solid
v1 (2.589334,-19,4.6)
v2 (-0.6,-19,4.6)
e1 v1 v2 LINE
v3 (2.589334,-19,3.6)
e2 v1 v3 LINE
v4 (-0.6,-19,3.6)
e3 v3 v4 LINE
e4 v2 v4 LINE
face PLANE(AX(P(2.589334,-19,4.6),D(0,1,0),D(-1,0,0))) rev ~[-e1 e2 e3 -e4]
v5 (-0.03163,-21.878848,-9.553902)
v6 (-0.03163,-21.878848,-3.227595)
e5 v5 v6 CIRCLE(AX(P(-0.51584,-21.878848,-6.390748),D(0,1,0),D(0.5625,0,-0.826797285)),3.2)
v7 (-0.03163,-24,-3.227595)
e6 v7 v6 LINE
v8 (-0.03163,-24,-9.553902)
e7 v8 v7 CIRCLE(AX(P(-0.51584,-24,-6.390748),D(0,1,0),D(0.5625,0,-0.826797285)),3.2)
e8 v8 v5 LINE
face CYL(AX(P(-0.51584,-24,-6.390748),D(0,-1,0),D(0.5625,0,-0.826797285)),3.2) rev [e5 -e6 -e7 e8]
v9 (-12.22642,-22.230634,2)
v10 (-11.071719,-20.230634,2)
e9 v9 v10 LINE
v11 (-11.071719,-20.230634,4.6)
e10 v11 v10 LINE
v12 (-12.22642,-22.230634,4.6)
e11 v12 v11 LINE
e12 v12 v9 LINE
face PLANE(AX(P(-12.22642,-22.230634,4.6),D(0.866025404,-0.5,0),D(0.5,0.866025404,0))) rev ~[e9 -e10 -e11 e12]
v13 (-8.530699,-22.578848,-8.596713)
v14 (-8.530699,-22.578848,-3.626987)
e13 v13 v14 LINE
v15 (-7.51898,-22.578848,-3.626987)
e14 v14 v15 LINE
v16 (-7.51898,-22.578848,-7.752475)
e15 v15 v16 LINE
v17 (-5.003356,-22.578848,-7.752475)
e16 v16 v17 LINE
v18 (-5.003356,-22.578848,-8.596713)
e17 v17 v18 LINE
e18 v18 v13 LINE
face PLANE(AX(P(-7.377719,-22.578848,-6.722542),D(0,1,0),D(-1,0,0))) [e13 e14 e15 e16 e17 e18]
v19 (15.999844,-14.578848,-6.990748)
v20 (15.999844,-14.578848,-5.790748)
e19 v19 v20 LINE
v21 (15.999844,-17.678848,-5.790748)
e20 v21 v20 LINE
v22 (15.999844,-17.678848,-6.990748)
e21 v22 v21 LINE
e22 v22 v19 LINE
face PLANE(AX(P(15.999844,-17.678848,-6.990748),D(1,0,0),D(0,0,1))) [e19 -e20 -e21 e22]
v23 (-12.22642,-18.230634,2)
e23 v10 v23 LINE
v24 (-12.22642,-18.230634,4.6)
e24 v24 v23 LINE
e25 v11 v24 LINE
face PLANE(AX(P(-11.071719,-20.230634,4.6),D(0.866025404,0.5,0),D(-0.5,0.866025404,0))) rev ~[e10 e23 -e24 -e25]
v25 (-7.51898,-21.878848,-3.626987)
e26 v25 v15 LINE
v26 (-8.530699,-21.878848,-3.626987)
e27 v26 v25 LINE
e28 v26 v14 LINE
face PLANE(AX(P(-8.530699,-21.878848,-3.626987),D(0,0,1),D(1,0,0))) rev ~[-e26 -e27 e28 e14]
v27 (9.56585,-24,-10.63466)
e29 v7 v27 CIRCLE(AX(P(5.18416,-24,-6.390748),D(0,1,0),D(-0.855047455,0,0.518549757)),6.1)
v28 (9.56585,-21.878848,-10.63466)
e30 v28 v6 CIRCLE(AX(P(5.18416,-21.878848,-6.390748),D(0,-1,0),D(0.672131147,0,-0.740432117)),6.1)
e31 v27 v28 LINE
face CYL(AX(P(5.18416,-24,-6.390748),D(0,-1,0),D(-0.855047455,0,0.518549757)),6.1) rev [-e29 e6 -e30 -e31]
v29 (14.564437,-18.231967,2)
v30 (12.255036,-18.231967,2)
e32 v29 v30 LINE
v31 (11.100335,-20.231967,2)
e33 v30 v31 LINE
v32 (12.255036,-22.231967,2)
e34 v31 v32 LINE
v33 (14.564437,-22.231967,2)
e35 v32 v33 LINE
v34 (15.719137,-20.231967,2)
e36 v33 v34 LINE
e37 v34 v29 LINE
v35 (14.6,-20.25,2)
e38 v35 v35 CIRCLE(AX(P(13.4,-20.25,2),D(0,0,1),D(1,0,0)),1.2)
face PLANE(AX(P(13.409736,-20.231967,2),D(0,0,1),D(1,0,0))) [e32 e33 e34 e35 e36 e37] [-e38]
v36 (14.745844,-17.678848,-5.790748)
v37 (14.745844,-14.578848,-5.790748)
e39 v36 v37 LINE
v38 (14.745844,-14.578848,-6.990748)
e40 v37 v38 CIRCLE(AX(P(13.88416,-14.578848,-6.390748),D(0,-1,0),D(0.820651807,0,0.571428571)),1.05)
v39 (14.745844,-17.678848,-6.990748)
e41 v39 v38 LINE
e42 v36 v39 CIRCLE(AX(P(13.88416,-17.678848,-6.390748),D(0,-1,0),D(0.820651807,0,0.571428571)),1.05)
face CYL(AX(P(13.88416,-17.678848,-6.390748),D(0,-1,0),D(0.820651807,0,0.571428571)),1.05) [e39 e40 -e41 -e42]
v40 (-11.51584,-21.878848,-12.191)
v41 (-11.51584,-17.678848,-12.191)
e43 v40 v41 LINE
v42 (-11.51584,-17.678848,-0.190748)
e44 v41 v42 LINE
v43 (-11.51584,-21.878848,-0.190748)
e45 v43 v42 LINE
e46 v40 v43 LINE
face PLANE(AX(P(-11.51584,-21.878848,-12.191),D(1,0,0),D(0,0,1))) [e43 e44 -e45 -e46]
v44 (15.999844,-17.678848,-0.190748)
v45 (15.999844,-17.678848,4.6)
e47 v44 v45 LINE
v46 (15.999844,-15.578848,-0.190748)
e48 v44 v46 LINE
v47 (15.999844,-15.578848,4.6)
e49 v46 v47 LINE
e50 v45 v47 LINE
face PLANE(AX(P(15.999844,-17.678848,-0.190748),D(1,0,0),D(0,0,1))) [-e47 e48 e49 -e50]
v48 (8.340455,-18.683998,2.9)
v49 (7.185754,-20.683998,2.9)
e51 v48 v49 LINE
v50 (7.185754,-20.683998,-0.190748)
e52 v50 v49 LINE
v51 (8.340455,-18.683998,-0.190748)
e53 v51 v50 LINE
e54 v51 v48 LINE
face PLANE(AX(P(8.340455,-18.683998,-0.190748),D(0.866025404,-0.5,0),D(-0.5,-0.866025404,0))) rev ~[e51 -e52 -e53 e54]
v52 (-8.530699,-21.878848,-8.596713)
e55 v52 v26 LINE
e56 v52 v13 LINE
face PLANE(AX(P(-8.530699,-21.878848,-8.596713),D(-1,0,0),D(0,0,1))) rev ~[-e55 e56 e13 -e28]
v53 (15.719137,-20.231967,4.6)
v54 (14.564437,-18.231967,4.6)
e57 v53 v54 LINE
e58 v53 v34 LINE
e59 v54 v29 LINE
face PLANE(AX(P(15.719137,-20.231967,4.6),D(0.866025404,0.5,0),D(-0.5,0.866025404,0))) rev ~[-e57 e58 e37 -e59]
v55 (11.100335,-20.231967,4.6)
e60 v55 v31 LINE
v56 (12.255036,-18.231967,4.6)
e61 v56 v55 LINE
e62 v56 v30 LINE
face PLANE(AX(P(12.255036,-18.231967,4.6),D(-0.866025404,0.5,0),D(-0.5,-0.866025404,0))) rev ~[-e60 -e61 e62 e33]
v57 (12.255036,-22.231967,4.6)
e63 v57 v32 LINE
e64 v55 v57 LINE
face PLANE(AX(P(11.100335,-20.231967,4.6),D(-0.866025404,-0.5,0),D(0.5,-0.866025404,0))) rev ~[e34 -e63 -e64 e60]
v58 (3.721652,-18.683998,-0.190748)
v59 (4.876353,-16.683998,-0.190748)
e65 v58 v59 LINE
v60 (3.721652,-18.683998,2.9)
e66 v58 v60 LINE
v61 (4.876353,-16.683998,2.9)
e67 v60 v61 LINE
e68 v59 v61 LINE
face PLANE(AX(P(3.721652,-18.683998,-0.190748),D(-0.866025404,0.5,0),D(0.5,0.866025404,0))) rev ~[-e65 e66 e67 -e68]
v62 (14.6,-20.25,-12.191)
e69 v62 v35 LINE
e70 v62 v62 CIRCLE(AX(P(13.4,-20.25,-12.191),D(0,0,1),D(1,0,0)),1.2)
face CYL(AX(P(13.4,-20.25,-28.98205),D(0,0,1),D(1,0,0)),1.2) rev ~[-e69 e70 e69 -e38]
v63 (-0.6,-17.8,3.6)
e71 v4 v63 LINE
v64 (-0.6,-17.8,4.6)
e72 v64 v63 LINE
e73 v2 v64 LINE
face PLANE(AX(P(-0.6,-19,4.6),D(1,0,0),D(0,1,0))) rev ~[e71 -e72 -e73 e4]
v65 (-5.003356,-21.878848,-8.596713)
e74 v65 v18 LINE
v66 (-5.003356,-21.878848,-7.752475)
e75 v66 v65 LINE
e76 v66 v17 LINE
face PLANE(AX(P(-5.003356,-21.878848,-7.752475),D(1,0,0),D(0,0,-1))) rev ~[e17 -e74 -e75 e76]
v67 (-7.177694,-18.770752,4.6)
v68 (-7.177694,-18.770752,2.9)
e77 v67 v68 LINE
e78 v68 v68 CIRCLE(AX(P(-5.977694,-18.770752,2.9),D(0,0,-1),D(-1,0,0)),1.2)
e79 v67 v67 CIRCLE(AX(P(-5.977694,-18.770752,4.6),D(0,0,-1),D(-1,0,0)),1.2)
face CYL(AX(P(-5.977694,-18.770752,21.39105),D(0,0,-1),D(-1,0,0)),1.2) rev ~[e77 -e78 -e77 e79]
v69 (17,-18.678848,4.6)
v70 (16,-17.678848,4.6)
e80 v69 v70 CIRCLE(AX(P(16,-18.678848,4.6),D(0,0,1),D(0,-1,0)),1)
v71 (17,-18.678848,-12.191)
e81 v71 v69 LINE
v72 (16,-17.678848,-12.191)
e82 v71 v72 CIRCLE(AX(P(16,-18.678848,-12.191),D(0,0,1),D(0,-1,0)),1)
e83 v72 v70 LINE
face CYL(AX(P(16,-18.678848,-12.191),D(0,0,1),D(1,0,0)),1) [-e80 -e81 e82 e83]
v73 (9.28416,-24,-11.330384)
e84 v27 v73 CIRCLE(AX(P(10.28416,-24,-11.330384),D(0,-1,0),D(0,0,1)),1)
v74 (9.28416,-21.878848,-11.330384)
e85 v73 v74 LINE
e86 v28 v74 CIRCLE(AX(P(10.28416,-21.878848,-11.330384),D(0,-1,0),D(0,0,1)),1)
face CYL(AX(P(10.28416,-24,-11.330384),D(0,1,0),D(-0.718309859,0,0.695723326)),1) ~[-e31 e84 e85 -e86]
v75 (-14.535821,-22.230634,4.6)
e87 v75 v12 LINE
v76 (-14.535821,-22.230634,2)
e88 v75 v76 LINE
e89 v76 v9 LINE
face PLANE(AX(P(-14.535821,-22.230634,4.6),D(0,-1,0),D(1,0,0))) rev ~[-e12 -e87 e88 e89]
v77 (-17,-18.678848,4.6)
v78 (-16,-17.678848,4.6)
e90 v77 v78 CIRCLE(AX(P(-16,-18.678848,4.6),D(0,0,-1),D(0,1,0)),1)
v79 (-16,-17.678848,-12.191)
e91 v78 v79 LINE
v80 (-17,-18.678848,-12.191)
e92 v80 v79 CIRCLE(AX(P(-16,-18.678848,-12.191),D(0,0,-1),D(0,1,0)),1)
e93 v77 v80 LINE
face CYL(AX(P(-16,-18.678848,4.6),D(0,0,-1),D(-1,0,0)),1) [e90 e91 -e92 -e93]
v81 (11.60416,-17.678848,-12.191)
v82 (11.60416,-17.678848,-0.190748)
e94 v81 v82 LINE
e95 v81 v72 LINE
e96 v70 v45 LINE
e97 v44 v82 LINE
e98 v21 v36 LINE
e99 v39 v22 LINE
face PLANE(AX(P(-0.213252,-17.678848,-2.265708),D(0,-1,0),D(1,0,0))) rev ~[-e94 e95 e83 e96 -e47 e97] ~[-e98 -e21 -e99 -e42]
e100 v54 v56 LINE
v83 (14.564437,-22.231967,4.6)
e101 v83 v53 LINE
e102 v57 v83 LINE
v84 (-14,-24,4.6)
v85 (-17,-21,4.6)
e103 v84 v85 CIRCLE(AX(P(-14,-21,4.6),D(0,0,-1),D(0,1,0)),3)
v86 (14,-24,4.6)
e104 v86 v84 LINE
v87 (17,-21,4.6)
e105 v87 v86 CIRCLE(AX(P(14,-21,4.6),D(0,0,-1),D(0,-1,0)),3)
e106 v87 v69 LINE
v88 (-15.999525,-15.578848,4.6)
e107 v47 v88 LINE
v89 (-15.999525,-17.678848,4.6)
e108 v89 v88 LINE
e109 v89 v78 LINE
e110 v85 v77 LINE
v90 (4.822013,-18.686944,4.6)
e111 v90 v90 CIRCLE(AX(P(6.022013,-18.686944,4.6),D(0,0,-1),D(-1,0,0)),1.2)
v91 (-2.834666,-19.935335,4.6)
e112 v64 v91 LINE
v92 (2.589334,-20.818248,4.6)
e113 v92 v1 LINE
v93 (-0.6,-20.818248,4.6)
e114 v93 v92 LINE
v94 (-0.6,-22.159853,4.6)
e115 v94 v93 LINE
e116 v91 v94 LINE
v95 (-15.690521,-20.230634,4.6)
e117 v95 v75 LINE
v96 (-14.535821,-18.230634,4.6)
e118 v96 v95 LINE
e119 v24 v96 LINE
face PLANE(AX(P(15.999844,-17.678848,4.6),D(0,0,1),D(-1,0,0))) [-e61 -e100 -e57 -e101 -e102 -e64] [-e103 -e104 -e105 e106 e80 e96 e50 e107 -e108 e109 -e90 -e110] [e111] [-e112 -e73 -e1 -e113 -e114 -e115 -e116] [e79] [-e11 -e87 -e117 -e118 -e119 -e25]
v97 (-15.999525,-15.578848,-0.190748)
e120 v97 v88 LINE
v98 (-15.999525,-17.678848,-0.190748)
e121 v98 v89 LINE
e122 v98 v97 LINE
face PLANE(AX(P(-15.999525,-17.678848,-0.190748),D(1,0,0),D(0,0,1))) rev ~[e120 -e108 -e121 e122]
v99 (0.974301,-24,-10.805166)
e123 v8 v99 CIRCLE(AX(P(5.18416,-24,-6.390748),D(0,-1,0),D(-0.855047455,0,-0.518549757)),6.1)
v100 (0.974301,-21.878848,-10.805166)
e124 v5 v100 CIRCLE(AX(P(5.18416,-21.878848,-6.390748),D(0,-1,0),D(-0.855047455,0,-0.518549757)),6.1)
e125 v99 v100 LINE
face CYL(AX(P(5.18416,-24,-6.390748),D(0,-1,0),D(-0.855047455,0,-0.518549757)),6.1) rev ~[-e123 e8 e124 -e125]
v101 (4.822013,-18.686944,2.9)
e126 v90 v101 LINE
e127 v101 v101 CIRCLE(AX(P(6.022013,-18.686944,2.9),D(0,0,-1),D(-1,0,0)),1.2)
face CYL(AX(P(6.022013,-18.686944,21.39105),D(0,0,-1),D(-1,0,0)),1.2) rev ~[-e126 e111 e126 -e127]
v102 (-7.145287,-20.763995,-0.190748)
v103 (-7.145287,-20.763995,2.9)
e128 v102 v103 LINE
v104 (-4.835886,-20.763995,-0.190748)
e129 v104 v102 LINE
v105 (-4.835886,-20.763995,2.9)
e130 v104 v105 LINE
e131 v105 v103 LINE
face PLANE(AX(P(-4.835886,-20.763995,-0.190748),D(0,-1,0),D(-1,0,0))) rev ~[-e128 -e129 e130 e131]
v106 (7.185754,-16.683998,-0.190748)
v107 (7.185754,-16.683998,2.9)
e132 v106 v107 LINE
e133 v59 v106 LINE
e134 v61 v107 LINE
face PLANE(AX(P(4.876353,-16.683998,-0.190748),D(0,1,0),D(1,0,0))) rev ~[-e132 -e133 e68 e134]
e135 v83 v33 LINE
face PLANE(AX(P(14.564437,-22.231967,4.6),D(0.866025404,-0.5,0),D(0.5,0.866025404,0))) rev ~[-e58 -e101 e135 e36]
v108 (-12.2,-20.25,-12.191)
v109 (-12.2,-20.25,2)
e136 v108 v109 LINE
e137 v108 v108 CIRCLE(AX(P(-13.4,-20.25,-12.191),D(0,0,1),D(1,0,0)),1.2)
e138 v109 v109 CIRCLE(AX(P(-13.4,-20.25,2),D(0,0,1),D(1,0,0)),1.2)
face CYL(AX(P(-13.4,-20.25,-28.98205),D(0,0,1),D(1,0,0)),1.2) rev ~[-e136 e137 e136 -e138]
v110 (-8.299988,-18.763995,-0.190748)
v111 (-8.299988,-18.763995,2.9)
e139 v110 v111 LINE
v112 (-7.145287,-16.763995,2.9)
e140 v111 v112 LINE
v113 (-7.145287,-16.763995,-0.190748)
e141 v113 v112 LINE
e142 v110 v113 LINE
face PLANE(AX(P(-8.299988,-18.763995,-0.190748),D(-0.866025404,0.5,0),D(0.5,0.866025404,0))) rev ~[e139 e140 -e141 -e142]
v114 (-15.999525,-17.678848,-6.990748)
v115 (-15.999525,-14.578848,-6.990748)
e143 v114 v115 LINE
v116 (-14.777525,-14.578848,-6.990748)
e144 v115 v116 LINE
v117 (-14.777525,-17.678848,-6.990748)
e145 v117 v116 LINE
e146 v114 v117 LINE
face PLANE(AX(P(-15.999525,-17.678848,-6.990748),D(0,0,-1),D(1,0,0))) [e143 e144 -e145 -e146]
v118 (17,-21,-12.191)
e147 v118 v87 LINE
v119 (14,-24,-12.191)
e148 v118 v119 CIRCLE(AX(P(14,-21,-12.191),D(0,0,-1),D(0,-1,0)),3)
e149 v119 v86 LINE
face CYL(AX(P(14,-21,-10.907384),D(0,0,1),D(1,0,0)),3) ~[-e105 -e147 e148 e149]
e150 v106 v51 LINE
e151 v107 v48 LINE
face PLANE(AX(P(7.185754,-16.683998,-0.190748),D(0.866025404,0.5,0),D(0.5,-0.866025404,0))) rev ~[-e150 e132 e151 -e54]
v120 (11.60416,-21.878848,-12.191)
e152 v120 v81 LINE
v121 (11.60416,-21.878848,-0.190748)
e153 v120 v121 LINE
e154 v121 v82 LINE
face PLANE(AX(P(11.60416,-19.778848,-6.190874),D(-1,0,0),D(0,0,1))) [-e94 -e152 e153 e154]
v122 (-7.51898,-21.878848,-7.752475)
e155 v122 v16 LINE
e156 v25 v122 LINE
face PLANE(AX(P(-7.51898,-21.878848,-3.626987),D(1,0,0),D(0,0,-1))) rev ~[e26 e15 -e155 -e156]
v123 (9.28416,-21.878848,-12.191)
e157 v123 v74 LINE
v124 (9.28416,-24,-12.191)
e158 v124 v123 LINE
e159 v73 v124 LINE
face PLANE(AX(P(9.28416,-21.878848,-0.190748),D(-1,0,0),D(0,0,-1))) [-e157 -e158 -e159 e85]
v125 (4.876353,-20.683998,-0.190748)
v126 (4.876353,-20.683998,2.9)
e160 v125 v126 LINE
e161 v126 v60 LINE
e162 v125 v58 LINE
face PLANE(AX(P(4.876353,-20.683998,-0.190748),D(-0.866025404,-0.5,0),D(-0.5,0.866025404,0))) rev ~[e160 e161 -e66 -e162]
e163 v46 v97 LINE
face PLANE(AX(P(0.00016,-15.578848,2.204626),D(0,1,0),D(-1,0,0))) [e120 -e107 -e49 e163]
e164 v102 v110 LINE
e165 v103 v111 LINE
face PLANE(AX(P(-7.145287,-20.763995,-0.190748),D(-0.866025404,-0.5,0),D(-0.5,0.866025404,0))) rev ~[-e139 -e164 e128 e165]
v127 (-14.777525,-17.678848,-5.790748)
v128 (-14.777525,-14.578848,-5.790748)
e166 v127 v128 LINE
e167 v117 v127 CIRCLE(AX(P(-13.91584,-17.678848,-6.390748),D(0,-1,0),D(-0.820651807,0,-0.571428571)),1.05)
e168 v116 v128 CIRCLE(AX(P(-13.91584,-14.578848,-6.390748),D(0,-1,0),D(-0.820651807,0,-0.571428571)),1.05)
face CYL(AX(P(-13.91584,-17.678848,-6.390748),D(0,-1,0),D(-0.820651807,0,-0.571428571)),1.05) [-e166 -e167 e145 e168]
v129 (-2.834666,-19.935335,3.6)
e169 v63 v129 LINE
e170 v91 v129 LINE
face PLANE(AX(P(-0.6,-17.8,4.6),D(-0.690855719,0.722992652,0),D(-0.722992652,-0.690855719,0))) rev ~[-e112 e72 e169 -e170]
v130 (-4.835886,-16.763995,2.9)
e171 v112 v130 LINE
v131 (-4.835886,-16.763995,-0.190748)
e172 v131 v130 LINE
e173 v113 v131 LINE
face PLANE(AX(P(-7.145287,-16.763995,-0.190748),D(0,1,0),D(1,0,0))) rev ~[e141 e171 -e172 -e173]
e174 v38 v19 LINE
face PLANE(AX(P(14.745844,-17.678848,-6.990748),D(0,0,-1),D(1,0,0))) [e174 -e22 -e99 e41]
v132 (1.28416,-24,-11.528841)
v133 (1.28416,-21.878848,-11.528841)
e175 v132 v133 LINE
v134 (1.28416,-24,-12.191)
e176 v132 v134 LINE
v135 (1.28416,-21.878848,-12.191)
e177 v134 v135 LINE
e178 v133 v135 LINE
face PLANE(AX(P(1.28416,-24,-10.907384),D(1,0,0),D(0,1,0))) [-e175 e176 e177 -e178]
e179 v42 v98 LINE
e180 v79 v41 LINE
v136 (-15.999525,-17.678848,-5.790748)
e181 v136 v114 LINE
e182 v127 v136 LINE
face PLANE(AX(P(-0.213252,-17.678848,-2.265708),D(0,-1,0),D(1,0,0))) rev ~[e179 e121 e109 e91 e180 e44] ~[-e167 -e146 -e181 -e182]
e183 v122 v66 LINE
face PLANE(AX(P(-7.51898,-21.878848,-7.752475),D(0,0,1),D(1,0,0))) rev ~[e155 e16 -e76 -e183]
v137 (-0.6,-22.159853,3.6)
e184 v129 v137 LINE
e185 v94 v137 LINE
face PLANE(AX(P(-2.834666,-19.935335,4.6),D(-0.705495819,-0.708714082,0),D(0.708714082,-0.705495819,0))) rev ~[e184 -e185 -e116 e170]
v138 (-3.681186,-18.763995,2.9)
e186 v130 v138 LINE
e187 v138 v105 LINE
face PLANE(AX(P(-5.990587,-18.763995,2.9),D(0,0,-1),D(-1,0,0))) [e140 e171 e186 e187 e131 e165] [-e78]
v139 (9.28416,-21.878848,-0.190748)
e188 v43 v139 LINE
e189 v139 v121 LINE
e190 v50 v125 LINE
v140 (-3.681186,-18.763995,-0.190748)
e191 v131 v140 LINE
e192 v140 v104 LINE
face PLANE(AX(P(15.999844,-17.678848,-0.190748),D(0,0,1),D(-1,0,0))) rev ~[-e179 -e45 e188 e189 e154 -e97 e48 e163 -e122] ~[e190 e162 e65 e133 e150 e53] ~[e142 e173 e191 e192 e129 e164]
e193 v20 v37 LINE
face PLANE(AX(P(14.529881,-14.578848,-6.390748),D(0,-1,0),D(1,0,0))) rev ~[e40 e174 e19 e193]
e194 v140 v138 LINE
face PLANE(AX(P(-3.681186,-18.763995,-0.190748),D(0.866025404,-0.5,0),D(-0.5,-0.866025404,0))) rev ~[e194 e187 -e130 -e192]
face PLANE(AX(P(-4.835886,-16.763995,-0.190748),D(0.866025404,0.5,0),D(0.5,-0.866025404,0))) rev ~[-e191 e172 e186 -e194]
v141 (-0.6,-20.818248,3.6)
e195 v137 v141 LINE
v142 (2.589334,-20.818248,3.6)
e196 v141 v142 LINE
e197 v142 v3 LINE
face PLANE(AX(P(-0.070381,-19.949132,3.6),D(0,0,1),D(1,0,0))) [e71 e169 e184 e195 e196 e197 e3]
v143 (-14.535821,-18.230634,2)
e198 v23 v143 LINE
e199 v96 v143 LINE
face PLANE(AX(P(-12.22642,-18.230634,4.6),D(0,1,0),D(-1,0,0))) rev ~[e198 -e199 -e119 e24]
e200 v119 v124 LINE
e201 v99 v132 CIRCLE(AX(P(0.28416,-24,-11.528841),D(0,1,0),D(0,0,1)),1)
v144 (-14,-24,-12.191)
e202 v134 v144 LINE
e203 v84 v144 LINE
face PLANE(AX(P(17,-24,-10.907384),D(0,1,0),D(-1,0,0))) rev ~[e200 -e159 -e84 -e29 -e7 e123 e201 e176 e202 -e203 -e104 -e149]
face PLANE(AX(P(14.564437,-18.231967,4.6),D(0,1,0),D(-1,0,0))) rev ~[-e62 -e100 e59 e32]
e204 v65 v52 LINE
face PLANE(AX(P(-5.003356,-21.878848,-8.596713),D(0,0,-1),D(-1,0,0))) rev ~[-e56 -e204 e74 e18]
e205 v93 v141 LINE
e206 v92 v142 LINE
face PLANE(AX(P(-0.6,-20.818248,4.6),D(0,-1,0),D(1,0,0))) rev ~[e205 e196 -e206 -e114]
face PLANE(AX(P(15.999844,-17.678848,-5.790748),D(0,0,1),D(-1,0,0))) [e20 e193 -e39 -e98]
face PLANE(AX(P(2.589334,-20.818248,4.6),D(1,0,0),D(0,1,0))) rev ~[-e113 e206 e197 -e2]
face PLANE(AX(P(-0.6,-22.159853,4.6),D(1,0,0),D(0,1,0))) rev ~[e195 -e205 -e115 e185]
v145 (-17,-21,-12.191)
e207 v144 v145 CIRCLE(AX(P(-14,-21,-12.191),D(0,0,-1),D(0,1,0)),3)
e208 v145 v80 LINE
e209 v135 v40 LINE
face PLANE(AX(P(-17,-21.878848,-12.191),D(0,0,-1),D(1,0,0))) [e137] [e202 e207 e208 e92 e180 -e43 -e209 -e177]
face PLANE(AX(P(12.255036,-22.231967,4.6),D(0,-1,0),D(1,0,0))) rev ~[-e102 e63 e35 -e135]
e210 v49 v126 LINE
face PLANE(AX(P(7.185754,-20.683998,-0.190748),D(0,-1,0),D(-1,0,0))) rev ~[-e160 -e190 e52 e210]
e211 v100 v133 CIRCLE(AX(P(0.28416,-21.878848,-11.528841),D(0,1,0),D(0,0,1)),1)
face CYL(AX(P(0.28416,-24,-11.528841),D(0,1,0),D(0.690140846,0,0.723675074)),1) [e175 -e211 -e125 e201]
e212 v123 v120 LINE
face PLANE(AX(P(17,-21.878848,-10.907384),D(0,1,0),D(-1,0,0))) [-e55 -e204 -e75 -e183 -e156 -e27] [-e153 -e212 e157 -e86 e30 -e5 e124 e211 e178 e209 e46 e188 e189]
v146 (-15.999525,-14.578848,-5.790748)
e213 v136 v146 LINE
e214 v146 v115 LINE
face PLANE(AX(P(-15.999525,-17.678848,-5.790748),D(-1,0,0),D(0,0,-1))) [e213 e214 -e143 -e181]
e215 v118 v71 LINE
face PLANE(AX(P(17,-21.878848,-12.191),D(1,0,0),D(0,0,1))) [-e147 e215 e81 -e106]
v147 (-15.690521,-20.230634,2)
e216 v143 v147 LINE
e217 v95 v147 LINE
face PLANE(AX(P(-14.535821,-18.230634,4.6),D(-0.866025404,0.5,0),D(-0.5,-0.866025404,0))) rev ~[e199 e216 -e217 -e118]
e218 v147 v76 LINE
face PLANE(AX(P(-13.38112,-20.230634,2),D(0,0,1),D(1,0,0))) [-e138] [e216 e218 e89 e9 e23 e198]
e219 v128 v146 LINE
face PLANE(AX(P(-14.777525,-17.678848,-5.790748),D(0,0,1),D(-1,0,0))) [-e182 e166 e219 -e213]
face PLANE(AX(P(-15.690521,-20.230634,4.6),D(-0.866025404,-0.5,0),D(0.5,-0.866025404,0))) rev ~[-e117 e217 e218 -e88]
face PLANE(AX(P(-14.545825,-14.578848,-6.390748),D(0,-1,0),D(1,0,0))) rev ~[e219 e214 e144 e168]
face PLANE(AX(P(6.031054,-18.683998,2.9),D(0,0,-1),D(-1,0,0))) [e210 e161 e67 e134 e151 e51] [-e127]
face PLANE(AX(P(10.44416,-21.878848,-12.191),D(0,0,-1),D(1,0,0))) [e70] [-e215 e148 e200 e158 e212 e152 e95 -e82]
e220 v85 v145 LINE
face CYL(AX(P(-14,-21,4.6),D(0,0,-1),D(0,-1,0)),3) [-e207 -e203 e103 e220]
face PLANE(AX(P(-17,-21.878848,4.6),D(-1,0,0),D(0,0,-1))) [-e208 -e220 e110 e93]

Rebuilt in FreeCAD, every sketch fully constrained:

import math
import FreeCAD as App
import Part
import Sketcher
Q = App.Units.Quantity


def edges_at(feature, points):
    """Names of the edges that pass closest to the given points."""
    edges = feature.Shape.Edges
    near = lambda p: min(range(len(edges)), key=lambda i: edges[i].distToShape(Part.Vertex(*p))[0])
    return sorted({f"Edge{near(p) + 1}" for p in points})

doc = App.newDocument("Part")
body = doc.addObject("PartDesign::Body", "Body")

# Sketch on XZ plane
sketch1 = body.newObject("Sketcher::SketchObject", "Sketch")
sketch1.AttachmentSupport = (doc.getObject("XZ_Plane"), [""])
sketch1.MapMode = "FlatFace"
sketch1.AttachmentOffset = App.Placement(App.Vector(0, 0, 24), App.Rotation())
sketch1.addGeometry([
    Part.LineSegment(App.Vector(-17, 4.6, 0), App.Vector(-17, -10.9, 0)),  # 0
    Part.LineSegment(App.Vector(-17, -10.9, 0), App.Vector(1.3, -10.9, 0)),  # 1
    Part.LineSegment(App.Vector(1.3, -10.9, 0), App.Vector(1.3, -9, 0)),  # 2
    Part.ArcOfCircle(Part.Circle(App.Vector(-0.5, -6.4, 0), App.Vector(0, 0, 1), 3.2), math.radians(81), math.radians(304)),  # 3
    Part.ArcOfCircle(Part.Circle(App.Vector(5.2, -6.4, 0), App.Vector(0, 0, 1), 6.1), math.radians(-48), math.radians(149)),  # 4
    Part.LineSegment(App.Vector(9.3, -10.9, 0), App.Vector(17, -10.9, 0)),  # 5
    Part.LineSegment(App.Vector(17, -10.9, 0), App.Vector(17, 4.6, 0)),  # 6
    Part.LineSegment(App.Vector(17, 4.6, 0), App.Vector(-17, 4.6, 0)),  # 7
], False)
sketch1.addConstraint([
    Sketcher.Constraint("Coincident", 0, 2, 1, 1),
    Sketcher.Constraint("Coincident", 1, 2, 2, 1),
    Sketcher.Constraint("Coincident", 2, 2, 3, 2),
    Sketcher.Constraint("Coincident", 3, 1, 4, 2),
    Sketcher.Constraint("Coincident", 4, 1, 5, 1),
    Sketcher.Constraint("Coincident", 5, 2, 6, 1),
    Sketcher.Constraint("Coincident", 6, 2, 7, 1),
    Sketcher.Constraint("Coincident", 7, 2, 0, 1),
    Sketcher.Constraint("Vertical", 0),
    Sketcher.Constraint("Horizontal", 1),
    Sketcher.Constraint("Vertical", 2),
    Sketcher.Constraint("Horizontal", 5),
    Sketcher.Constraint("Vertical", 6),
    Sketcher.Constraint("Horizontal", 7),
    Sketcher.Constraint("Symmetric", 0, 2, 5, 2, -2),
    Sketcher.Constraint("Horizontal", 3, 3, 4, 3),
    Sketcher.Constraint("Radius", 3, 3.2),
    Sketcher.Constraint("Radius", 4, 6.1),
    Sketcher.Constraint("DistanceX", 7, 2, 7, 1, 34.0),
    Sketcher.Constraint("DistanceX", 1, 2, 4, 1, 8.0),
    Sketcher.Constraint("DistanceY", -1, 1, 6, 2, 4.6),
    Sketcher.Constraint("DistanceX", 3, 3, 4, 3, 5.7),
    Sketcher.Constraint("DistanceX", 3, 3, 1, 2, 1.8),
    Sketcher.Constraint("DistanceX", 1, 1, 1, 2, 18.28416),
    Sketcher.Constraint("DistanceY", 2, 2, -1, 1, 9.036499),
])
pad1 = body.newObject("PartDesign::Pad", "Pad")
pad1.Profile = sketch1
pad1.Length = 2.121152
pad1.Reversed = True

# Sketch on XY plane
sketch2 = body.newObject("Sketcher::SketchObject", "Sketch001")
sketch2.AttachmentSupport = (doc.getObject("XY_Plane"), [""])
sketch2.MapMode = "FlatFace"
sketch2.AttachmentOffset = App.Placement(App.Vector(0, 0, -10.907384), App.Rotation())
sketch2.addGeometry([
    Part.LineSegment(App.Vector(1.3, -21.9, 0), App.Vector(1.3, -24, 0)),
    Part.LineSegment(App.Vector(1.3, -24, 0), App.Vector(-17, -24, 0)),
    Part.LineSegment(App.Vector(-17, -24, 0), App.Vector(-17, -21.9, 0)),
    Part.LineSegment(App.Vector(-17, -21.9, 0), App.Vector(1.3, -21.9, 0)),
], False)
sketch2.addConstraint([
    Sketcher.Constraint("Coincident", 0, 2, 1, 1),
    Sketcher.Constraint("Coincident", 1, 2, 2, 1),
    Sketcher.Constraint("Coincident", 2, 2, 3, 1),
    Sketcher.Constraint("Coincident", 3, 2, 0, 1),
    Sketcher.Constraint("Vertical", 0),
    Sketcher.Constraint("Horizontal", 1),
    Sketcher.Constraint("Vertical", 2),
    Sketcher.Constraint("Horizontal", 3),
    Sketcher.Constraint("DistanceY", 0, 2, -1, 1, 24.0),
    Sketcher.Constraint("DistanceX", 1, 2, -1, 1, 17.0),
    Sketcher.Constraint("DistanceX", 1, 2, 1, 1, 18.28416),
    Sketcher.Constraint("DistanceY", 0, 2, 0, 1, 2.121152),
])
pad2 = body.newObject("PartDesign::Pad", "Pad001")
pad2.Profile = sketch2
pad2.Length = 1.283616
pad2.Reversed = True

# Sketch on XY plane
sketch3 = body.newObject("Sketcher::SketchObject", "Sketch002")
sketch3.AttachmentSupport = (doc.getObject("XY_Plane"), [""])
sketch3.MapMode = "FlatFace"
sketch3.AttachmentOffset = App.Placement(App.Vector(0, 0, -10.907384), App.Rotation())
sketch3.addGeometry([
    Part.LineSegment(App.Vector(17, -21.9, 0), App.Vector(17, -24, 0)),
    Part.LineSegment(App.Vector(17, -24, 0), App.Vector(9.3, -24, 0)),
    Part.LineSegment(App.Vector(9.3, -24, 0), App.Vector(9.3, -21.9, 0)),
    Part.LineSegment(App.Vector(9.3, -21.9, 0), App.Vector(17, -21.9, 0)),
], False)
sketch3.addConstraint([
    Sketcher.Constraint("Coincident", 0, 2, 1, 1),
    Sketcher.Constraint("Coincident", 1, 2, 2, 1),
    Sketcher.Constraint("Coincident", 2, 2, 3, 1),
    Sketcher.Constraint("Coincident", 3, 2, 0, 1),
    Sketcher.Constraint("Vertical", 0),
    Sketcher.Constraint("Horizontal", 1),
    Sketcher.Constraint("Vertical", 2),
    Sketcher.Constraint("Horizontal", 3),
    Sketcher.Constraint("DistanceX", -1, 1, 0, 2, 17.0),
    Sketcher.Constraint("DistanceY", 0, 2, -1, 1, 24.0),
    Sketcher.Constraint("DistanceX", 1, 2, 1, 1, 7.71584),
    Sketcher.Constraint("DistanceY", 0, 2, 0, 1, 2.121152),
])
pad3 = body.newObject("PartDesign::Pad", "Pad002")
pad3.Profile = sketch3
pad3.Length = 1.283616
pad3.Reversed = True

# Sketch on XZ plane
sketch4 = body.newObject("Sketcher::SketchObject", "Sketch003")
sketch4.AttachmentSupport = (doc.getObject("XZ_Plane"), [""])
sketch4.MapMode = "FlatFace"
sketch4.AttachmentOffset = App.Placement(App.Vector(0, 0, 21.878848), App.Rotation())
sketch4.addGeometry([
    Part.LineSegment(App.Vector(-17, -12.191, 0), App.Vector(-17, 4.6, 0)),  # 0
    Part.LineSegment(App.Vector(-17, 4.6, 0), App.Vector(17, 4.6, 0)),  # 1
    Part.LineSegment(App.Vector(17, 4.6, 0), App.Vector(17, -12.191, 0)),  # 2
    Part.LineSegment(App.Vector(17, -12.191, 0), App.Vector(11.60416, -12.191, 0)),  # 3
    Part.BSplineCurve([App.Vector(9.28416, -12.191, 0), App.Vector(10.057493, -12.191, 0), App.Vector(10.830826, -12.191, 0), App.Vector(11.60416, -12.191, 0)], [4, 4], [0, 1], False, 3, [1, 1, 1, 1], False),  # 4
    Part.LineSegment(App.Vector(9.28416, -12.191, 0), App.Vector(9.28416, -0.190748, 0)),  # 5
    Part.LineSegment(App.Vector(9.28416, -0.190748, 0), App.Vector(-11.51584, -0.190748, 0)),  # 6
    Part.LineSegment(App.Vector(-11.51584, -0.190748, 0), App.Vector(-11.51584, -12.191, 0)),  # 7
    Part.LineSegment(App.Vector(-11.51584, -12.191, 0), App.Vector(-17, -12.191, 0)),  # 8
], False)
sketch4.addConstraint([
    Sketcher.Constraint("Block", 4),
    Sketcher.Constraint("Coincident", 0, 2, 1, 1),
    Sketcher.Constraint("Coincident", 1, 2, 2, 1),
    Sketcher.Constraint("Coincident", 2, 2, 3, 1),
    Sketcher.Constraint("Coincident", 3, 2, 4, 2),
    Sketcher.Constraint("Coincident", 4, 1, 5, 1),
    Sketcher.Constraint("Coincident", 5, 2, 6, 1),
    Sketcher.Constraint("Coincident", 6, 2, 7, 1),
    Sketcher.Constraint("Coincident", 7, 2, 8, 1),
    Sketcher.Constraint("Coincident", 8, 2, 0, 1),
    Sketcher.Constraint("Vertical", 0),
    Sketcher.Constraint("Horizontal", 1),
    Sketcher.Constraint("Vertical", 2),
    Sketcher.Constraint("Horizontal", 3),
    Sketcher.Constraint("Vertical", 5),
    Sketcher.Constraint("Horizontal", 6),
    Sketcher.Constraint("Vertical", 7),
    Sketcher.Constraint("Horizontal", 8),
    Sketcher.Constraint("Symmetric", 2, 2, 8, 2, -2),
    Sketcher.Constraint("DistanceX", 1, 1, 1, 2, 34.0),
    Sketcher.Constraint("DistanceX", 6, 2, 6, 1, 20.8),
    Sketcher.Constraint("DistanceY", -1, 1, 0, 2, 4.6),
    Sketcher.Constraint("DistanceY", 5, 1, 5, 2, 12.000252),
])
pad4 = body.newObject("PartDesign::Pad", "Pad003")
pad4.Profile = sketch4
pad4.Length = 4.2
pad4.Reversed = True

# Sketch on XZ plane
sketch5 = body.newObject("Sketcher::SketchObject", "Sketch004")
sketch5.AttachmentSupport = (doc.getObject("XZ_Plane"), [""])
sketch5.MapMode = "FlatFace"
sketch5.AttachmentOffset = App.Placement(App.Vector(0, 0, 17.678848), App.Rotation())
sketch5.addGeometry([
    Part.LineSegment(App.Vector(16, 4.6, 0), App.Vector(16, -0.2, 0)),
    Part.LineSegment(App.Vector(16, -0.2, 0), App.Vector(-16, -0.2, 0)),
    Part.LineSegment(App.Vector(-16, -0.2, 0), App.Vector(-16, 4.6, 0)),
    Part.LineSegment(App.Vector(-16, 4.6, 0), App.Vector(16, 4.6, 0)),
], False)
sketch5.addConstraint([
    Sketcher.Constraint("Coincident", 0, 2, 1, 1),
    Sketcher.Constraint("Coincident", 1, 2, 2, 1),
    Sketcher.Constraint("Coincident", 2, 2, 3, 1),
    Sketcher.Constraint("Coincident", 3, 2, 0, 1),
    Sketcher.Constraint("Vertical", 0),
    Sketcher.Constraint("Horizontal", 1),
    Sketcher.Constraint("Vertical", 2),
    Sketcher.Constraint("Horizontal", 3),
    Sketcher.Constraint("DistanceY", -1, 1, 2, 2, 4.6),
    Sketcher.Constraint("DistanceX", 1, 2, 1, 1, 31.999369),
    Sketcher.Constraint("DistanceY", 0, 2, 0, 1, 4.790748),
    Sketcher.Constraint("DistanceX", -1, 1, 0, 2, 15.999844),
])
pad5 = body.newObject("PartDesign::Pad", "Pad004")
pad5.Profile = sketch5
pad5.Length = 2.1
pad5.Reversed = True

# Sketch on YZ plane
sketch6 = body.newObject("Sketcher::SketchObject", "Sketch005")
sketch6.AttachmentSupport = (doc.getObject("YZ_Plane"), [""])
sketch6.MapMode = "FlatFace"
sketch6.AttachmentOffset = App.Placement(App.Vector(0, 0, 9.28416), App.Rotation())
sketch6.addGeometry([
    Part.LineSegment(App.Vector(-17.7, -12.2, 0), App.Vector(-21.9, -12.2, 0)),
    Part.LineSegment(App.Vector(-21.9, -12.2, 0), App.Vector(-21.9, -0.2, 0)),
    Part.LineSegment(App.Vector(-21.9, -0.2, 0), App.Vector(-17.7, -0.2, 0)),
    Part.LineSegment(App.Vector(-17.7, -0.2, 0), App.Vector(-17.7, -12.2, 0)),
], False)
sketch6.addConstraint([
    Sketcher.Constraint("Coincident", 0, 2, 1, 1),
    Sketcher.Constraint("Coincident", 1, 2, 2, 1),
    Sketcher.Constraint("Coincident", 2, 2, 3, 1),
    Sketcher.Constraint("Coincident", 3, 2, 0, 1),
    Sketcher.Constraint("Horizontal", 0),
    Sketcher.Constraint("Vertical", 1),
    Sketcher.Constraint("Horizontal", 2),
    Sketcher.Constraint("Vertical", 3),
    Sketcher.Constraint("DistanceX", 0, 2, 0, 1, 4.2),
    Sketcher.Constraint("DistanceY", 0, 2, -1, 1, 12.191),
    Sketcher.Constraint("DistanceY", 1, 1, 1, 2, 12.000252),
    Sketcher.Constraint("DistanceX", 0, 2, -1, 1, 21.878848),
])
pocket1 = body.newObject("PartDesign::Pocket", "Pocket")
pocket1.Profile = sketch6
pocket1.Length = 2.32
pocket1.Reversed = True

# Sketch on XZ plane
sketch7 = body.newObject("Sketcher::SketchObject", "Sketch006")
sketch7.AttachmentSupport = (doc.getObject("XZ_Plane"), [""])
sketch7.MapMode = "FlatFace"
sketch7.AttachmentOffset = App.Placement(App.Vector(0, 0, 24), App.Rotation())
sketch7.addGeometry([
    Part.LineSegment(App.Vector(1.3, -11.1, 0), App.Vector(1.3, -9, 0)),
    Part.ArcOfCircle(Part.Circle(App.Vector(-0.5, -6.4, 0), App.Vector(0, 0, 1), 3.2), math.radians(-81), math.radians(-56)),
    Part.ArcOfCircle(Part.Circle(App.Vector(5.2, -6.4, 0), App.Vector(0, 0, 1), 6.1), math.radians(-148.76), math.radians(-129.74)),
], False)
sketch7.addConstraint([
    Sketcher.Constraint("Coincident", 0, 2, 1, 2),
    Sketcher.Constraint("Coincident", 1, 1, 2, 1),
    Sketcher.Constraint("Coincident", 2, 2, 0, 1),
    Sketcher.Constraint("Vertical", 0),
    Sketcher.Constraint("Horizontal", 1, 3, 2, 3),
    Sketcher.Constraint("Radius", 1, 3.2),
    Sketcher.Constraint("Radius", 2, 6.1),
    Sketcher.Constraint("DistanceX", 1, 3, 2, 3, 5.7),
    Sketcher.Constraint("DistanceX", 1, 3, 0, 2, 1.8),
    Sketcher.Constraint("DistanceY", 0, 2, -1, 1, 9.036499),
    Sketcher.Constraint("DistanceX", 1, 3, -1, 1, 0.51584),
])
pocket2 = body.newObject("PartDesign::Pocket", "Pocket001")
pocket2.Profile = sketch7
pocket2.Type = "ThroughAll"

# Sketch on XZ plane
sketch8 = body.newObject("Sketcher::SketchObject", "Sketch007")
sketch8.AttachmentSupport = (doc.getObject("XZ_Plane"), [""])
sketch8.MapMode = "FlatFace"
sketch8.AttachmentOffset = App.Placement(App.Vector(0, 0, 17.678848), App.Rotation())
sketch8.addGeometry([
    Part.LineSegment(App.Vector(-14.8, -7, 0), App.Vector(-16, -7, 0)),
    Part.LineSegment(App.Vector(-16, -7, 0), App.Vector(-16, -5.8, 0)),
    Part.LineSegment(App.Vector(-16, -5.8, 0), App.Vector(-14.8, -5.8, 0)),
    Part.ArcOfCircle(Part.Circle(App.Vector(-13.9, -6.4, 0), App.Vector(0, 0, 1), 1.1), math.radians(-145), math.radians(145)),
], False)
sketch8.addConstraint([
    Sketcher.Constraint("Coincident", 0, 2, 1, 1),
    Sketcher.Constraint("Coincident", 1, 2, 2, 1),
    Sketcher.Constraint("Coincident", 2, 2, 3, 2),
    Sketcher.Constraint("Coincident", 3, 1, 0, 1),
    Sketcher.Constraint("Horizontal", 0),
    Sketcher.Constraint("Vertical", 1),
    Sketcher.Constraint("Horizontal", 2),
    Sketcher.Constraint("Vertical", 2, 2, 3, 1),
    Sketcher.Constraint("Radius", 3, 1.05),
    Sketcher.Constraint("DistanceY", 1, 1, 1, 2, 1.2),
    Sketcher.Constraint("DistanceX", 0, 2, 0, 1, 1.222),
    Sketcher.Constraint("DistanceX", 3, 3, -1, 1, 13.91584),
    Sketcher.Constraint("DistanceY", 3, 3, -1, 1, 6.390748),
])
pad6 = body.newObject("PartDesign::Pad", "Pad005")
pad6.Profile = sketch8
pad6.Length = 3.1
pad6.Reversed = True

# Sketch on XZ plane
sketch9 = body.newObject("Sketcher::SketchObject", "Sketch008")
sketch9.AttachmentSupport = (doc.getObject("XZ_Plane"), [""])
sketch9.MapMode = "FlatFace"
sketch9.AttachmentOffset = App.Placement(App.Vector(0, 0, 17.678848), App.Rotation())
sketch9.addGeometry([
    Part.LineSegment(App.Vector(14.7, -5.8, 0), App.Vector(16, -5.8, 0)),
    Part.LineSegment(App.Vector(16, -5.8, 0), App.Vector(16, -7, 0)),
    Part.LineSegment(App.Vector(16, -7, 0), App.Vector(14.7, -7, 0)),
    Part.ArcOfCircle(Part.Circle(App.Vector(13.9, -6.4, 0), App.Vector(0, 0, 1), 1.1), math.radians(35), math.radians(325)),
], False)
sketch9.addConstraint([
    Sketcher.Constraint("Coincident", 0, 2, 1, 1),
    Sketcher.Constraint("Coincident", 1, 2, 2, 1),
    Sketcher.Constraint("Coincident", 2, 2, 3, 2),
    Sketcher.Constraint("Coincident", 3, 1, 0, 1),
    Sketcher.Constraint("Horizontal", 0),
    Sketcher.Constraint("Vertical", 1),
    Sketcher.Constraint("Horizontal", 2),
    Sketcher.Constraint("Vertical", 2, 2, 3, 1),
    Sketcher.Constraint("Radius", 3, 1.05),
    Sketcher.Constraint("DistanceY", 1, 2, 1, 1, 1.2),
    Sketcher.Constraint("DistanceX", 0, 1, 0, 2, 1.254),
    Sketcher.Constraint("DistanceX", -1, 1, 3, 3, 13.88416),
    Sketcher.Constraint("DistanceY", 3, 3, -1, 1, 6.390748),
])
pad7 = body.newObject("PartDesign::Pad", "Pad006")
pad7.Profile = sketch9
pad7.Length = 3.1
pad7.Reversed = True

# Sketch on XY plane
sketch10 = body.newObject("Sketcher::SketchObject", "Sketch009")
sketch10.AttachmentSupport = (doc.getObject("XY_Plane"), [""])
sketch10.MapMode = "FlatFace"
sketch10.AttachmentOffset = App.Placement(App.Vector(0, 0, 4.6), App.Rotation())
sketch10.addGeometry([
    Part.LineSegment(App.Vector(-0.6, -17.8, 0), App.Vector(-2.8, -19.9, 0)),  # 0
    Part.LineSegment(App.Vector(-2.8, -19.9, 0), App.Vector(-0.6, -22.2, 0)),  # 1
    Part.LineSegment(App.Vector(-0.6, -22.2, 0), App.Vector(-0.6, -20.8, 0)),  # 2
    Part.LineSegment(App.Vector(-0.6, -20.8, 0), App.Vector(2.6, -20.8, 0)),  # 3
    Part.LineSegment(App.Vector(2.6, -20.8, 0), App.Vector(2.6, -19, 0)),  # 4
    Part.LineSegment(App.Vector(2.6, -19, 0), App.Vector(-0.6, -19, 0)),  # 5
    Part.LineSegment(App.Vector(-0.6, -19, 0), App.Vector(-0.6, -17.8, 0)),  # 6
], False)
sketch10.addConstraint([
    Sketcher.Constraint("Coincident", 0, 2, 1, 1),
    Sketcher.Constraint("Coincident", 1, 2, 2, 1),
    Sketcher.Constraint("Coincident", 2, 2, 3, 1),
    Sketcher.Constraint("Coincident", 3, 2, 4, 1),
    Sketcher.Constraint("Coincident", 4, 2, 5, 1),
    Sketcher.Constraint("Coincident", 5, 2, 6, 1),
    Sketcher.Constraint("Coincident", 6, 2, 0, 1),
    Sketcher.Constraint("Vertical", 2),
    Sketcher.Constraint("Horizontal", 3),
    Sketcher.Constraint("Vertical", 4),
    Sketcher.Constraint("Horizontal", 5),
    Sketcher.Constraint("Vertical", 6),
    Sketcher.Constraint("Vertical", 2, 2, 5, 2),
    Sketcher.Constraint("DistanceY", 6, 1, 6, 2, 1.2),
    Sketcher.Constraint("DistanceY", 4, 2, -1, 1, 19.0),
    Sketcher.Constraint("DistanceX", 1, 2, -1, 1, 0.6),
    Sketcher.Constraint("DistanceX", 0, 2, 3, 2, 5.424),
    Sketcher.Constraint("DistanceY", 4, 1, 4, 2, 1.818249),
    Sketcher.Constraint("DistanceX", 3, 1, 3, 2, 3.189334),
    Sketcher.Constraint("DistanceY", 2, 1, 2, 2, 1.341605),
    Sketcher.Constraint("DistanceY", 1, 2, 0, 2, 2.224518),
])
pocket3 = body.newObject("PartDesign::Pocket", "Pocket002")
pocket3.Profile = sketch10
pocket3.Length = 1

# Sketch on XY plane
sketch11 = body.newObject("Sketcher::SketchObject", "Sketch010")
sketch11.AttachmentSupport = (doc.getObject("XY_Plane"), [""])
sketch11.MapMode = "FlatFace"
sketch11.AttachmentOffset = App.Placement(App.Vector(0, 0, 4.6), App.Rotation())
sketch11.addGeometry([
    Part.LineSegment(App.Vector(-14.5, -22.2, 0), App.Vector(-12.2, -22.2, 0)),  # 0
    Part.LineSegment(App.Vector(-12.2, -22.2, 0), App.Vector(-11.1, -20.2, 0)),  # 1
    Part.LineSegment(App.Vector(-11.1, -20.2, 0), App.Vector(-12.2, -18.2, 0)),  # 2
    Part.LineSegment(App.Vector(-12.2, -18.2, 0), App.Vector(-14.5, -18.2, 0)),  # 3
    Part.LineSegment(App.Vector(-14.5, -18.2, 0), App.Vector(-15.7, -20.2, 0)),  # 4
    Part.LineSegment(App.Vector(-15.7, -20.2, 0), App.Vector(-14.5, -22.2, 0)),  # 5
], False)
sketch11.addConstraint([
    Sketcher.Constraint("Coincident", 0, 2, 1, 1),
    Sketcher.Constraint("Coincident", 1, 2, 2, 1),
    Sketcher.Constraint("Coincident", 2, 2, 3, 1),
    Sketcher.Constraint("Coincident", 3, 2, 4, 1),
    Sketcher.Constraint("Coincident", 4, 2, 5, 1),
    Sketcher.Constraint("Coincident", 5, 2, 0, 1),
    Sketcher.Constraint("Horizontal", 0),
    Sketcher.Constraint("Horizontal", 3),
    Sketcher.Constraint("Parallel", 1, 4),
    Sketcher.Constraint("Parallel", 2, 5),
    Sketcher.Constraint("Horizontal", 1, 2, 4, 2),
    Sketcher.Constraint("Vertical", 0, 2, 2, 2),
    Sketcher.Constraint("Vertical", 3, 2, 5, 2),
    Sketcher.Constraint("Angle", 1, Q("60 deg")),
    Sketcher.Constraint("DistanceY", 0, 2, 1, 2, 2.0),
    Sketcher.Constraint("DistanceX", 0, 1, 0, 2, 2.309401),
    Sketcher.Constraint("DistanceX", 0, 2, -1, 1, 12.22642),
    Sketcher.Constraint("DistanceY", 0, 2, -1, 1, 22.230634),
])
pocket4 = body.newObject("PartDesign::Pocket", "Pocket003")
pocket4.Profile = sketch11
pocket4.Length = 2.6

# Sketch on XY plane
sketch12 = body.newObject("Sketcher::SketchObject", "Sketch011")
sketch12.AttachmentSupport = (doc.getObject("XY_Plane"), [""])
sketch12.MapMode = "FlatFace"
sketch12.AttachmentOffset = App.Placement(App.Vector(0, 0, 4.6), App.Rotation())
sketch12.addGeometry([
    Part.LineSegment(App.Vector(12.3, -22.2, 0), App.Vector(14.6, -22.2, 0)),  # 0
    Part.LineSegment(App.Vector(14.6, -22.2, 0), App.Vector(15.7, -20.2, 0)),  # 1
    Part.LineSegment(App.Vector(15.7, -20.2, 0), App.Vector(14.6, -18.2, 0)),  # 2
    Part.LineSegment(App.Vector(14.6, -18.2, 0), App.Vector(12.3, -18.2, 0)),  # 3
    Part.LineSegment(App.Vector(12.3, -18.2, 0), App.Vector(11.1, -20.2, 0)),  # 4
    Part.LineSegment(App.Vector(11.1, -20.2, 0), App.Vector(12.3, -22.2, 0)),  # 5
], False)
sketch12.addConstraint([
    Sketcher.Constraint("Coincident", 0, 2, 1, 1),
    Sketcher.Constraint("Coincident", 1, 2, 2, 1),
    Sketcher.Constraint("Coincident", 2, 2, 3, 1),
    Sketcher.Constraint("Coincident", 3, 2, 4, 1),
    Sketcher.Constraint("Coincident", 4, 2, 5, 1),
    Sketcher.Constraint("Coincident", 5, 2, 0, 1),
    Sketcher.Constraint("Horizontal", 0),
    Sketcher.Constraint("Horizontal", 3),
    Sketcher.Constraint("Parallel", 1, 4),
    Sketcher.Constraint("Parallel", 2, 5),
    Sketcher.Constraint("Horizontal", 1, 2, 4, 2),
    Sketcher.Constraint("Vertical", 0, 2, 2, 2),
    Sketcher.Constraint("Vertical", 3, 2, 5, 2),
    Sketcher.Constraint("Angle", 1, Q("60 deg")),
    Sketcher.Constraint("DistanceY", 0, 2, 1, 2, 2.0),
    Sketcher.Constraint("DistanceX", 0, 1, 0, 2, 2.309401),
    Sketcher.Constraint("DistanceX", -1, 1, 0, 2, 14.564437),
    Sketcher.Constraint("DistanceY", 0, 2, -1, 1, 22.231967),
])
pocket5 = body.newObject("PartDesign::Pocket", "Pocket004")
pocket5.Profile = sketch12
pocket5.Length = 2.6

# Sketch on XZ plane
sketch13 = body.newObject("Sketcher::SketchObject", "Sketch012")
sketch13.AttachmentSupport = (doc.getObject("XZ_Plane"), [""])
sketch13.MapMode = "FlatFace"
sketch13.AttachmentOffset = App.Placement(App.Vector(0, 0, 21.878848), App.Rotation())
sketch13.addGeometry([
    Part.LineSegment(App.Vector(-7.5, -7.8, 0), App.Vector(-5, -7.8, 0)),  # 0
    Part.LineSegment(App.Vector(-5, -7.8, 0), App.Vector(-5, -8.6, 0)),  # 1
    Part.LineSegment(App.Vector(-5, -8.6, 0), App.Vector(-8.5, -8.6, 0)),  # 2
    Part.LineSegment(App.Vector(-8.5, -8.6, 0), App.Vector(-8.5, -3.6, 0)),  # 3
    Part.LineSegment(App.Vector(-8.5, -3.6, 0), App.Vector(-7.5, -3.6, 0)),  # 4
    Part.LineSegment(App.Vector(-7.5, -3.6, 0), App.Vector(-7.5, -7.8, 0)),  # 5
], False)
sketch13.addConstraint([
    Sketcher.Constraint("Coincident", 0, 2, 1, 1),
    Sketcher.Constraint("Coincident", 1, 2, 2, 1),
    Sketcher.Constraint("Coincident", 2, 2, 3, 1),
    Sketcher.Constraint("Coincident", 3, 2, 4, 1),
    Sketcher.Constraint("Coincident", 4, 2, 5, 1),
    Sketcher.Constraint("Coincident", 5, 2, 0, 1),
    Sketcher.Constraint("Horizontal", 0),
    Sketcher.Constraint("Vertical", 1),
    Sketcher.Constraint("Horizontal", 2),
    Sketcher.Constraint("Vertical", 3),
    Sketcher.Constraint("Horizontal", 4),
    Sketcher.Constraint("Vertical", 5),
    Sketcher.Constraint("DistanceX", 4, 1, 4, 2, 1.011719),
    Sketcher.Constraint("DistanceY", 1, 2, 1, 1, 0.844238),
    Sketcher.Constraint("DistanceY", 5, 2, 5, 1, 4.125488),
    Sketcher.Constraint("DistanceX", 2, 2, -1, 1, 8.530699),
    Sketcher.Constraint("DistanceX", 0, 1, 0, 2, 2.515625),
    Sketcher.Constraint("DistanceY", 0, 2, -1, 1, 7.752475),
])
pocket6 = body.newObject("PartDesign::Pocket", "Pocket005")
pocket6.Profile = sketch13
pocket6.Length = 0.7
pocket6.Reversed = True

# Sketch on XY plane
sketch14 = body.newObject("Sketcher::SketchObject", "Sketch013")
sketch14.AttachmentSupport = (doc.getObject("XY_Plane"), [""])
sketch14.MapMode = "FlatFace"
sketch14.AttachmentOffset = App.Placement(App.Vector(0, 0, -0.190748), App.Rotation())
sketch14.addGeometry([
    Part.LineSegment(App.Vector(7.2, -20.7, 0), App.Vector(4.9, -20.7, 0)),  # 0
    Part.LineSegment(App.Vector(4.9, -20.7, 0), App.Vector(3.7, -18.7, 0)),  # 1
    Part.LineSegment(App.Vector(3.7, -18.7, 0), App.Vector(4.9, -16.7, 0)),  # 2
    Part.LineSegment(App.Vector(4.9, -16.7, 0), App.Vector(7.2, -16.7, 0)),  # 3
    Part.LineSegment(App.Vector(7.2, -16.7, 0), App.Vector(8.3, -18.7, 0)),  # 4
    Part.LineSegment(App.Vector(8.3, -18.7, 0), App.Vector(7.2, -20.7, 0)),  # 5
], False)
sketch14.addConstraint([
    Sketcher.Constraint("Coincident", 0, 2, 1, 1),
    Sketcher.Constraint("Coincident", 1, 2, 2, 1),
    Sketcher.Constraint("Coincident", 2, 2, 3, 1),
    Sketcher.Constraint("Coincident", 3, 2, 4, 1),
    Sketcher.Constraint("Coincident", 4, 2, 5, 1),
    Sketcher.Constraint("Coincident", 5, 2, 0, 1),
    Sketcher.Constraint("Horizontal", 0),
    Sketcher.Constraint("Horizontal", 3),
    Sketcher.Constraint("Parallel", 1, 4),
    Sketcher.Constraint("Parallel", 2, 5),
    Sketcher.Constraint("Horizontal", 1, 2, 4, 2),
    Sketcher.Constraint("Vertical", 0, 2, 2, 2),
    Sketcher.Constraint("Vertical", 3, 2, 5, 2),
    Sketcher.Constraint("Angle", 1, Q("120 deg")),
    Sketcher.Constraint("DistanceY", 0, 2, 1, 2, 2.0),
    Sketcher.Constraint("DistanceX", 0, 2, 0, 1, 2.309401),
    Sketcher.Constraint("DistanceX", -1, 1, 0, 2, 4.876353),
    Sketcher.Constraint("DistanceY", 0, 2, -1, 1, 20.683998),
])
pocket7 = body.newObject("PartDesign::Pocket", "Pocket006")
pocket7.Profile = sketch14
pocket7.Length = 3.090748
pocket7.Reversed = True

# Sketch on XY plane
sketch15 = body.newObject("Sketcher::SketchObject", "Sketch014")
sketch15.AttachmentSupport = (doc.getObject("XY_Plane"), [""])
sketch15.MapMode = "FlatFace"
sketch15.AttachmentOffset = App.Placement(App.Vector(0, 0, -0.190748), App.Rotation())
sketch15.addGeometry([
    Part.LineSegment(App.Vector(-4.8, -20.8, 0), App.Vector(-7.1, -20.8, 0)),  # 0
    Part.LineSegment(App.Vector(-7.1, -20.8, 0), App.Vector(-8.3, -18.8, 0)),  # 1
    Part.LineSegment(App.Vector(-8.3, -18.8, 0), App.Vector(-7.1, -16.8, 0)),  # 2
    Part.LineSegment(App.Vector(-7.1, -16.8, 0), App.Vector(-4.8, -16.8, 0)),  # 3
    Part.LineSegment(App.Vector(-4.8, -16.8, 0), App.Vector(-3.7, -18.8, 0)),  # 4
    Part.LineSegment(App.Vector(-3.7, -18.8, 0), App.Vector(-4.8, -20.8, 0)),  # 5
], False)
sketch15.addConstraint([
    Sketcher.Constraint("Coincident", 0, 2, 1, 1),
    Sketcher.Constraint("Coincident", 1, 2, 2, 1),
    Sketcher.Constraint("Coincident", 2, 2, 3, 1),
    Sketcher.Constraint("Coincident", 3, 2, 4, 1),
    Sketcher.Constraint("Coincident", 4, 2, 5, 1),
    Sketcher.Constraint("Coincident", 5, 2, 0, 1),
    Sketcher.Constraint("Horizontal", 0),
    Sketcher.Constraint("Horizontal", 3),
    Sketcher.Constraint("Parallel", 1, 4),
    Sketcher.Constraint("Parallel", 2, 5),
    Sketcher.Constraint("Horizontal", 1, 2, 4, 2),
    Sketcher.Constraint("Vertical", 0, 2, 2, 2),
    Sketcher.Constraint("Vertical", 3, 2, 5, 2),
    Sketcher.Constraint("Angle", 1, Q("120 deg")),
    Sketcher.Constraint("DistanceY", 0, 2, 1, 2, 2.0),
    Sketcher.Constraint("DistanceX", 0, 2, 0, 1, 2.309401),
    Sketcher.Constraint("DistanceX", 0, 2, -1, 1, 7.145287),
    Sketcher.Constraint("DistanceY", 0, 2, -1, 1, 20.763995),
])
pocket8 = body.newObject("PartDesign::Pocket", "Pocket007")
pocket8.Profile = sketch15
pocket8.Length = 3.090748
pocket8.Reversed = True

# Sketch on XY plane
sketch16 = body.newObject("Sketcher::SketchObject", "Sketch015")
sketch16.AttachmentSupport = (doc.getObject("XY_Plane"), [""])
sketch16.MapMode = "FlatFace"
sketch16.AttachmentOffset = App.Placement(App.Vector(0, 0, 4.6), App.Rotation())
sketch16.addGeometry(Part.Circle(App.Vector(-6, -18.8, 0), App.Vector(0, 0, 1), 1.2), False)
sketch16.addConstraint([
    Sketcher.Constraint("Diameter", 0, 2.4),
    Sketcher.Constraint("DistanceY", 0, 3, -1, 1, 18.770752),
    Sketcher.Constraint("DistanceX", 0, 3, -1, 1, 5.977694),
])
doc.recompute()
hole = body.newObject("PartDesign::Hole", "Hole")
hole.Profile = sketch16
hole.ThreadType = "None"
hole.Diameter = 2.4
hole.DepthType = "Dimension"
hole.Depth = 16.79105
hole.DrillPoint = "Flat"

# Sketch on XY plane
sketch17 = body.newObject("Sketcher::SketchObject", "Sketch016")
sketch17.AttachmentSupport = (doc.getObject("XY_Plane"), [""])
sketch17.MapMode = "FlatFace"
sketch17.AttachmentOffset = App.Placement(App.Vector(0, 0, 4.6), App.Rotation())
sketch17.addGeometry(Part.Circle(App.Vector(6, -18.7, 0), App.Vector(0, 0, 1), 1.2), False)
sketch17.addConstraint([
    Sketcher.Constraint("Diameter", 0, 2.4),
    Sketcher.Constraint("DistanceX", -1, 1, 0, 3, 6.022013),
    Sketcher.Constraint("DistanceY", 0, 3, -1, 1, 18.686944),
])
doc.recompute()
hole2 = body.newObject("PartDesign::Hole", "Hole001")
hole2.Profile = sketch17
hole2.ThreadType = "None"
hole2.Diameter = 2.4
hole2.DepthType = "Dimension"
hole2.Depth = 16.79105
hole2.DrillPoint = "Flat"

# Sketch on XY plane
sketch18 = body.newObject("Sketcher::SketchObject", "Sketch017")
sketch18.AttachmentSupport = (doc.getObject("XY_Plane"), [""])
sketch18.MapMode = "FlatFace"
sketch18.AttachmentOffset = App.Placement(App.Vector(0, 0, -12.191), App.Rotation())
sketch18.addGeometry(Part.Circle(App.Vector(13.4, -20.2, 0), App.Vector(0, 0, 1), 1.2), False)
sketch18.addConstraint([
    Sketcher.Constraint("Diameter", 0, 2.4),
    Sketcher.Constraint("DistanceX", -1, 1, 0, 3, 13.4),
    Sketcher.Constraint("DistanceY", 0, 3, -1, 1, 20.25),
])
doc.recompute()
hole3 = body.newObject("PartDesign::Hole", "Hole002")
hole3.Profile = sketch18
hole3.ThreadType = "None"
hole3.Diameter = 2.4
hole3.DepthType = "Dimension"
hole3.Depth = 16.79105
hole3.DrillPoint = "Flat"
hole3.Reversed = True

# Sketch on XY plane
sketch19 = body.newObject("Sketcher::SketchObject", "Sketch018")
sketch19.AttachmentSupport = (doc.getObject("XY_Plane"), [""])
sketch19.MapMode = "FlatFace"
sketch19.AttachmentOffset = App.Placement(App.Vector(0, 0, -12.191), App.Rotation())
sketch19.addGeometry(Part.Circle(App.Vector(-13.4, -20.2, 0), App.Vector(0, 0, 1), 1.2), False)
sketch19.addConstraint([
    Sketcher.Constraint("Diameter", 0, 2.4),
    Sketcher.Constraint("DistanceX", 0, 3, -1, 1, 13.4),
    Sketcher.Constraint("DistanceY", 0, 3, -1, 1, 20.25),
])
doc.recompute()
hole4 = body.newObject("PartDesign::Hole", "Hole003")
hole4.Profile = sketch19
hole4.ThreadType = "None"
hole4.Diameter = 2.4
hole4.DepthType = "Dimension"
hole4.Depth = 16.79105
hole4.DrillPoint = "Flat"
hole4.Reversed = True
doc.recompute()

fillet = body.newObject("PartDesign::Fillet", "Fillet")
fillet.Base = (hole4, edges_at(hole4, [(9.284, -22.939, -10.907)]))
fillet.Radius = 1
doc.recompute()

fillet2 = body.newObject("PartDesign::Fillet", "Fillet001")
fillet2.Base = (fillet, edges_at(fillet, [(1.284, -22.939, -11.081)]))
fillet2.Radius = 1
doc.recompute()

fillet3 = body.newObject("PartDesign::Fillet", "Fillet002")
fillet3.Base = (fillet2, edges_at(fillet2, [(-17, -17.679, -3.796)]))
fillet3.Radius = 1
doc.recompute()

fillet4 = body.newObject("PartDesign::Fillet", "Fillet003")
fillet4.Base = (fillet3, edges_at(fillet3, [(17, -17.679, -3.796)]))
fillet4.Radius = 1
doc.recompute()

fillet5 = body.newObject("PartDesign::Fillet", "Fillet004")
fillet5.Base = (fillet4, edges_at(fillet4, [(-17, -24, -3.154)]))
fillet5.Radius = 3
doc.recompute()

fillet6 = body.newObject("PartDesign::Fillet", "Fillet005")
fillet6.Base = (fillet5, edges_at(fillet5, [(17, -24, -3.154)]))
fillet6.Radius = 3

doc.recompute()
